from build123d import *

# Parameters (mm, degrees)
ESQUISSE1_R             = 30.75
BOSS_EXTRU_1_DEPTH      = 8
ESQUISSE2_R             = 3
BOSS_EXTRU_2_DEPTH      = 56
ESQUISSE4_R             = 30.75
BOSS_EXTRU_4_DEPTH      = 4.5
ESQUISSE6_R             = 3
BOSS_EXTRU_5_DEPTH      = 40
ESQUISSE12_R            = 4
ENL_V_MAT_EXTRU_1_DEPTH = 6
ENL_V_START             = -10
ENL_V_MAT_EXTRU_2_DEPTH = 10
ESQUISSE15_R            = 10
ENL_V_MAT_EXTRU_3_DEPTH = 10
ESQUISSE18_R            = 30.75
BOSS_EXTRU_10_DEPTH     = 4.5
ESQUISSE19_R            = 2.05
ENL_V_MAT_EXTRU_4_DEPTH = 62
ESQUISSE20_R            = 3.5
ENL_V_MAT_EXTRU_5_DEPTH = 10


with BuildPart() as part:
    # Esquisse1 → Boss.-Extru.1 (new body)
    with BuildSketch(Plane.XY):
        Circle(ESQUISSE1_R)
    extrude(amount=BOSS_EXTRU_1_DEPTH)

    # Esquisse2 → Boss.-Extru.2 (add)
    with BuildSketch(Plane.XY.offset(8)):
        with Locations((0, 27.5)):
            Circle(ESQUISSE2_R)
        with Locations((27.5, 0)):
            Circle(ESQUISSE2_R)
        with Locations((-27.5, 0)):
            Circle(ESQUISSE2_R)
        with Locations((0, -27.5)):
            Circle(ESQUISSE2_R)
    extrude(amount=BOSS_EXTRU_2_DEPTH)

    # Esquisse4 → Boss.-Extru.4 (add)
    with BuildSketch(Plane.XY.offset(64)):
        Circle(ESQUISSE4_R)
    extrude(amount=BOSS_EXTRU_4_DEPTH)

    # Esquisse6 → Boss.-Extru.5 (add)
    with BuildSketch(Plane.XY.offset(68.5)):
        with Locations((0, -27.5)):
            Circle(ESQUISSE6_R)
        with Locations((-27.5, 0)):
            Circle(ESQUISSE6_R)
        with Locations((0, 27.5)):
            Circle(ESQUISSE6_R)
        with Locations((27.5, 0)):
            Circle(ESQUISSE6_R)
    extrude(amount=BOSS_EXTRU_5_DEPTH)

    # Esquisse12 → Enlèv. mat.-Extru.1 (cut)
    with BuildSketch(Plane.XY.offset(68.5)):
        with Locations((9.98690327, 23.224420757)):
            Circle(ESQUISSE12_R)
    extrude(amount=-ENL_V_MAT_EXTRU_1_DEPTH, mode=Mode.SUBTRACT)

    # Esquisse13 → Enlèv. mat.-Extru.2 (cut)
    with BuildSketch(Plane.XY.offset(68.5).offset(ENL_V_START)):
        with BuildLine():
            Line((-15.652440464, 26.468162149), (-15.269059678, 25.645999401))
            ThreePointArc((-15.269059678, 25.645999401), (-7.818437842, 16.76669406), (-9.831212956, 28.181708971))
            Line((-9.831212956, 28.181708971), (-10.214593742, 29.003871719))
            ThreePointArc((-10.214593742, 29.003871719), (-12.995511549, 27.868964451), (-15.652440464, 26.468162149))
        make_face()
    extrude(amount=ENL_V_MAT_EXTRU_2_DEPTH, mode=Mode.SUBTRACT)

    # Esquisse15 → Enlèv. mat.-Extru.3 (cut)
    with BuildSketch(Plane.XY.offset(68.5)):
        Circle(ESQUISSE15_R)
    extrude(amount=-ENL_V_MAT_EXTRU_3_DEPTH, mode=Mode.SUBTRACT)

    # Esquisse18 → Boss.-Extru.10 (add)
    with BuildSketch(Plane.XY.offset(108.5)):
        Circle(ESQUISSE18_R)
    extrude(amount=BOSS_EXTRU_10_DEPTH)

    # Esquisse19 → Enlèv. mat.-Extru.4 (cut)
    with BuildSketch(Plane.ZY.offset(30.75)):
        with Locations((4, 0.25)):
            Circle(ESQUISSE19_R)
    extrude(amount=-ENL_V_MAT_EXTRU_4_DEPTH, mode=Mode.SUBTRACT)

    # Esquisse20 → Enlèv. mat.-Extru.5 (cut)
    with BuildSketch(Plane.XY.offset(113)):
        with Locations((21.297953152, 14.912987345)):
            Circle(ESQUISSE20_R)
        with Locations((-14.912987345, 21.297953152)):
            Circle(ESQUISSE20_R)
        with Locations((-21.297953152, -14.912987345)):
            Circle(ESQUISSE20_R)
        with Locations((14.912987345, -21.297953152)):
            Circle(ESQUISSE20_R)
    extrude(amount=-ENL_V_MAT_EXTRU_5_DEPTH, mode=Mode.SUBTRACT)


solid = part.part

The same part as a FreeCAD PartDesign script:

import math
import FreeCAD as App
import Part
import Sketcher

V = App.Vector
Q = App.Units.Quantity

doc = App.newDocument("Part")
body = doc.addObject("PartDesign::Body", "Body")

# Sketch on XY plane
sketch1 = body.newObject("Sketcher::SketchObject", "Sketch")
sketch1.AttachmentSupport = (doc.getObject("XY_Plane"), [""])
sketch1.MapMode = "FlatFace"
sketch1.addGeometry(Part.Circle(V(0, 0, 0), V(0, 0, 1), 31), False)
sketch1.addConstraint([
    Sketcher.Constraint("Coincident", 0, 3, -1, 1),
    Sketcher.Constraint("Diameter", 0, Q("61.5 mm")),
])
pad1 = body.newObject("PartDesign::Pad", "Pad")
pad1.Profile = sketch1
pad1.Length = 8

# Sketch on XY plane
sketch2 = body.newObject("Sketcher::SketchObject", "Sketch001")
sketch2.AttachmentSupport = (doc.getObject("XY_Plane"), [""])
sketch2.MapMode = "FlatFace"
sketch2.AttachmentOffset = App.Placement(V(0, 0, 8), App.Rotation())
sketch2.addGeometry([
    Part.Circle(V(0, 27.5, 0), V(0, 0, 1), 3),
    Part.Circle(V(27.5, 0, 0), V(0, 0, 1), 3),
    Part.Circle(V(-27.5, 0, 0), V(0, 0, 1), 3),
    Part.Circle(V(0, -27.5, 0), V(0, 0, 1), 3),
], False)
sketch2.addConstraint([
    Sketcher.Constraint("Equal", 0, 1),
    Sketcher.Constraint("Equal", 1, 2),
    Sketcher.Constraint("Equal", 2, 3),
    Sketcher.Constraint("Symmetric", 1, 3, 2, 3, -1, 1),
    Sketcher.Constraint("Symmetric", 0, 3, 3, 3, -1, 1),
    Sketcher.Constraint("PointOnObject", 0, 3, -2),
    Sketcher.Constraint("PointOnObject", 1, 3, -1),
    Sketcher.Constraint("Diameter", 0, Q("6 mm")),
    Sketcher.Constraint("DistanceX", 2, 3, 1, 3, Q("55 mm")),
    Sketcher.Constraint("DistanceY", 3, 3, 0, 3, Q("55 mm")),
])
pad2 = body.newObject("PartDesign::Pad", "Pad001")
pad2.Profile = sketch2
pad2.Length = 56

# Sketch on XY plane
sketch3 = body.newObject("Sketcher::SketchObject", "Sketch002")
sketch3.AttachmentSupport = (doc.getObject("XY_Plane"), [""])
sketch3.MapMode = "FlatFace"
sketch3.AttachmentOffset = App.Placement(V(0, 0, 64), App.Rotation())
sketch3.addGeometry(Part.Circle(V(0, 0, 0), V(0, 0, 1), 31), False)
sketch3.addConstraint([
    Sketcher.Constraint("Coincident", 0, 3, -1, 1),
    Sketcher.Constraint("Diameter", 0, Q("61.5 mm")),
])
pad3 = body.newObject("PartDesign::Pad", "Pad002")
pad3.Profile = sketch3
pad3.Length = 4.5

# Sketch on XY plane
sketch4 = body.newObject("Sketcher::SketchObject", "Sketch003")
sketch4.AttachmentSupport = (doc.getObject("XY_Plane"), [""])
sketch4.MapMode = "FlatFace"
sketch4.AttachmentOffset = App.Placement(V(0, 0, 68.5), App.Rotation())
sketch4.addGeometry([
    Part.Circle(V(0, -27.5, 0), V(0, 0, 1), 3),
    Part.Circle(V(-27.5, 0, 0), V(0, 0, 1), 3),
    Part.Circle(V(0, 27.5, 0), V(0, 0, 1), 3),
    Part.Circle(V(27.5, 0, 0), V(0, 0, 1), 3),
], False)
sketch4.addConstraint([
    Sketcher.Constraint("Equal", 0, 1),
    Sketcher.Constraint("Equal", 1, 2),
    Sketcher.Constraint("Equal", 2, 3),
    Sketcher.Constraint("Symmetric", 0, 3, 2, 3, -1, 1),
    Sketcher.Constraint("Symmetric", 1, 3, 3, 3, -1, 1),
    Sketcher.Constraint("PointOnObject", 0, 3, -2),
    Sketcher.Constraint("PointOnObject", 1, 3, -1),
    Sketcher.Constraint("Diameter", 0, Q("6 mm")),
    Sketcher.Constraint("DistanceY", 0, 3, 2, 3, Q("55 mm")),
    Sketcher.Constraint("DistanceX", 1, 3, 3, 3, Q("55 mm")),
])
pad4 = body.newObject("PartDesign::Pad", "Pad003")
pad4.Profile = sketch4
pad4.Length = 40

# Sketch on XY plane
sketch5 = body.newObject("Sketcher::SketchObject", "Sketch004")
sketch5.AttachmentSupport = (doc.getObject("XY_Plane"), [""])
sketch5.MapMode = "FlatFace"
sketch5.AttachmentOffset = App.Placement(V(0, 0, 68.5), App.Rotation())
sketch5.addGeometry(Part.Circle(V(10, 23.2, 0), V(0, 0, 1), 4), False)
sketch5.addConstraint([
    Sketcher.Constraint("Diameter", 0, Q("8 mm")),
    Sketcher.Constraint("DistanceY", -1, 1, 0, 3, Q("23.224421 mm")),
    Sketcher.Constraint("DistanceX", -1, 1, 0, 3, Q("9.986903 mm")),
])
pocket1 = body.newObject("PartDesign::Pocket", "Pocket")
pocket1.Profile = sketch5
pocket1.Length = 6

# Sketch on XY plane
sketch6 = body.newObject("Sketcher::SketchObject", "Sketch005")
sketch6.AttachmentSupport = (doc.getObject("XY_Plane"), [""])
sketch6.MapMode = "FlatFace"
sketch6.AttachmentOffset = App.Placement(V(0, 0, 58.5), App.Rotation())
sketch6.addGeometry([
    Part.LineSegment(V(-15.7, 26.5, 0), V(-15.3, 25.6, 0)),
    Part.ArcOfCircle(Part.Circle(V(-10.4, 22.2, 0), V(0, 0, 1), 6), math.radians(145), math.radians(445)),
    Part.LineSegment(V(-9.8, 28.2, 0), V(-10.2, 29, 0)),
    Part.ArcOfCircle(Part.Circle(V(0, 0, 0), V(0, 0, 1), 30.8), math.radians(109.4), math.radians(120.6)),
], False)
sketch6.addConstraint([
    Sketcher.Constraint("Coincident", 0, 2, 1, 1),
    Sketcher.Constraint("Coincident", 1, 2, 2, 1),
    Sketcher.Constraint("Coincident", 2, 2, 3, 1),
    Sketcher.Constraint("Coincident", 3, 2, 0, 1),
    Sketcher.Constraint("Coincident", 3, 3, -1, 1),
    Sketcher.Constraint("Parallel", 0, 2),
    Sketcher.Constraint("Equal", 0, 2),
    Sketcher.Constraint("Radius", 1, Q("6 mm")),
    Sketcher.Constraint("Angle", 0, Q("-65 deg")),
    Sketcher.Constraint("Radius", 3, Q("30.75 mm")),
    Sketcher.Constraint("DistanceY", -1, 1, 0, 2, Q("25.645999 mm")),
    Sketcher.Constraint("DistanceY", -1, 1, 1, 3, Q("22.204541 mm")),
    Sketcher.Constraint("DistanceX", 0, 2, -1, 1, Q("15.26906 mm")),
])
pocket2 = body.newObject("PartDesign::Pocket", "Pocket001")
pocket2.Profile = sketch6
pocket2.Length = 10
pocket2.Reversed = True

# Sketch on XY plane
sketch7 = body.newObject("Sketcher::SketchObject", "Sketch006")
sketch7.AttachmentSupport = (doc.getObject("XY_Plane"), [""])
sketch7.MapMode = "FlatFace"
sketch7.AttachmentOffset = App.Placement(V(0, 0, 68.5), App.Rotation())
sketch7.addGeometry(Part.Circle(V(0, 0, 0), V(0, 0, 1), 10), False)
sketch7.addConstraint([
    Sketcher.Constraint("Coincident", 0, 3, -1, 1),
    Sketcher.Constraint("Diameter", 0, Q("20 mm")),
])
pocket3 = body.newObject("PartDesign::Pocket", "Pocket002")
pocket3.Profile = sketch7
pocket3.Length = 10

# Sketch on XY plane
sketch8 = body.newObject("Sketcher::SketchObject", "Sketch007")
sketch8.AttachmentSupport = (doc.getObject("XY_Plane"), [""])
sketch8.MapMode = "FlatFace"
sketch8.AttachmentOffset = App.Placement(V(0, 0, 108.5), App.Rotation())
sketch8.addGeometry(Part.Circle(V(0, 0, 0), V(0, 0, 1), 31), False)
sketch8.addConstraint([
    Sketcher.Constraint("Coincident", 0, 3, -1, 1),
    Sketcher.Constraint("Diameter", 0, Q("61.5 mm")),
])
pad5 = body.newObject("PartDesign::Pad", "Pad004")
pad5.Profile = sketch8
pad5.Length = 4.5

# Sketch on YZ plane
sketch9 = body.newObject("Sketcher::SketchObject", "Sketch008")
sketch9.AttachmentSupport = (doc.getObject("YZ_Plane"), [""])
sketch9.MapMode = "FlatFace"
sketch9.AttachmentOffset = App.Placement(V(0, 0, -30.75), App.Rotation())
sketch9.addGeometry(Part.Circle(V(0.2, 4, 0), V(0, 0, 1), 2), False)
sketch9.addConstraint([
    Sketcher.Constraint("Diameter", 0, Q("4.1 mm")),
    Sketcher.Constraint("DistanceY", -1, 1, 0, 3, Q("4 mm")),
    Sketcher.Constraint("DistanceX", -1, 1, 0, 3, Q("0.25 mm")),
])
pocket4 = body.newObject("PartDesign::Pocket", "Pocket003")
pocket4.Profile = sketch9
pocket4.Length = 62
pocket4.Reversed = True

# Sketch on XY plane
sketch10 = body.newObject("Sketcher::SketchObject", "Sketch009")
sketch10.AttachmentSupport = (doc.getObject("XY_Plane"), [""])
sketch10.MapMode = "FlatFace"
sketch10.AttachmentOffset = App.Placement(V(0, 0, 113), App.Rotation())
sketch10.addGeometry([
    Part.Circle(V(21.3, 14.9, 0), V(0, 0, 1), 3.5),
    Part.Circle(V(-14.9, 21.3, 0), V(0, 0, 1), 3.5),
    Part.Circle(V(-21.3, -14.9, 0), V(0, 0, 1), 3.5),
    Part.Circle(V(14.9, -21.3, 0), V(0, 0, 1), 3.5),
], False)
sketch10.addConstraint([
    Sketcher.Constraint("Equal", 0, 1),
    Sketcher.Constraint("Equal", 1, 2),
    Sketcher.Constraint("Equal", 2, 3),
    Sketcher.Constraint("Symmetric", 0, 3, 2, 3, -1, 1),
    Sketcher.Constraint("Symmetric", 1, 3, 3, 3, -1, 1),
    Sketcher.Constraint("Diameter", 0, Q("7 mm")),
    Sketcher.Constraint("DistanceX", 1, 3, 0, 3, Q("36.21094 mm")),
    Sketcher.Constraint("DistanceY", 2, 3, 1, 3, Q("36.21094 mm")),
    Sketcher.Constraint("DistanceX", -1, 1, 0, 3, Q("21.297953 mm")),
    Sketcher.Constraint("DistanceY", -1, 1, 0, 3, Q("14.912987 mm")),
])
pocket5 = body.newObject("PartDesign::Pocket", "Pocket004")
pocket5.Profile = sketch10
pocket5.Length = 10

doc.recompute()
